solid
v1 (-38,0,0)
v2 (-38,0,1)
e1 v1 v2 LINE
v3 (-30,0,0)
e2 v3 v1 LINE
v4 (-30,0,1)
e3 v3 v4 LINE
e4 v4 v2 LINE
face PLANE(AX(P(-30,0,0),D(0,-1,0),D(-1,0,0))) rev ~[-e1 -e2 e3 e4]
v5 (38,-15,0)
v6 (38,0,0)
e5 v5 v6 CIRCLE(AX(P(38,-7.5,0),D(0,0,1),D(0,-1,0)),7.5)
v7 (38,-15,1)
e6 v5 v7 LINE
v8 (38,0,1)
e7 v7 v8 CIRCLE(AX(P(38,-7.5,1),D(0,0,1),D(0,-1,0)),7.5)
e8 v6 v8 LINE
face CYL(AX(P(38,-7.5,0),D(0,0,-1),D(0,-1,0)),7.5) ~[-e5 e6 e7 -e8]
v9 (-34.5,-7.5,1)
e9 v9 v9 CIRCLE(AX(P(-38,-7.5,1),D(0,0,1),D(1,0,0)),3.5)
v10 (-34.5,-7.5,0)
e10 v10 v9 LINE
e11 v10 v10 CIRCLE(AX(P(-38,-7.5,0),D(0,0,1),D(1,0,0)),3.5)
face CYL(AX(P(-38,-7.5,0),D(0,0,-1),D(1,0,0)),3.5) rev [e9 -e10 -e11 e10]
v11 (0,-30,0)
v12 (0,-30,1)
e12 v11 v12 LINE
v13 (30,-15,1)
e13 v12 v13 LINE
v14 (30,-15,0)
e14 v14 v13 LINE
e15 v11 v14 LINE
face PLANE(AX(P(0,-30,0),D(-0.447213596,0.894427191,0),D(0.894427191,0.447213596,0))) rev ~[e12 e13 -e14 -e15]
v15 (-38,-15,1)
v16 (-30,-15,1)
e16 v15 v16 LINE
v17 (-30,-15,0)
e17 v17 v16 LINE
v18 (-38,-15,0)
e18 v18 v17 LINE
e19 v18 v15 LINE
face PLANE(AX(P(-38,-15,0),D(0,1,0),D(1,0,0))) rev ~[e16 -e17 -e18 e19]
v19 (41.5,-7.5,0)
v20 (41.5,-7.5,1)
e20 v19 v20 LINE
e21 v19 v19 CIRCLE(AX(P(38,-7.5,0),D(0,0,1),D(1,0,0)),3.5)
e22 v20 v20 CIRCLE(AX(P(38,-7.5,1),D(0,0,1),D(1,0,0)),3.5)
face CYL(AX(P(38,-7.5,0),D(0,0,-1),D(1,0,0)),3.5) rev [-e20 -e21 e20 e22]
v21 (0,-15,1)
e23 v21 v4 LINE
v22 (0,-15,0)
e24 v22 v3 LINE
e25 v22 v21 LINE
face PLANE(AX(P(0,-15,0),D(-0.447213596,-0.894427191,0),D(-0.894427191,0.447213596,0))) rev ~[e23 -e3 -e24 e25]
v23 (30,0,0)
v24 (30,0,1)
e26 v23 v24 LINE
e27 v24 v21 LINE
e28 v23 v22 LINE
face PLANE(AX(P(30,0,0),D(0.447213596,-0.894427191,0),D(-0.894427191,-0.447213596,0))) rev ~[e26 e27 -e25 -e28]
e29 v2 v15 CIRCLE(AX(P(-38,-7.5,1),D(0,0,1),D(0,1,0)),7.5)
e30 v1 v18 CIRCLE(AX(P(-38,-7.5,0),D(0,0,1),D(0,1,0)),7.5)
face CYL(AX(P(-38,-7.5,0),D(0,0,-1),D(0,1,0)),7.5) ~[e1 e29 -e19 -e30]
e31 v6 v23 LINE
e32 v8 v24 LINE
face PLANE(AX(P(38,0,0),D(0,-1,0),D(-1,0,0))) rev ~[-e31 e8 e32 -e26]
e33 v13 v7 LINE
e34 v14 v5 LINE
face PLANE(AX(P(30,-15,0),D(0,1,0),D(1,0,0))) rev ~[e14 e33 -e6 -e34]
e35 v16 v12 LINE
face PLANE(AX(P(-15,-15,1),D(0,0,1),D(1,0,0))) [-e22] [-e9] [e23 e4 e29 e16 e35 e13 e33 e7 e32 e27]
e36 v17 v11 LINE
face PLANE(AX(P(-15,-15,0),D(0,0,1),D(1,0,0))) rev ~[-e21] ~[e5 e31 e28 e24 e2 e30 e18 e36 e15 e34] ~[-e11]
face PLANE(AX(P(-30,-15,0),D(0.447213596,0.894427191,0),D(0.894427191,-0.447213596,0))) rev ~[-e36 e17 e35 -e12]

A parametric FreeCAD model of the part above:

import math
import FreeCAD as App
import Part
import Sketcher
from FreeCAD import Vector

doc = App.newDocument("Part")
body = doc.addObject("PartDesign::Body", "Body")

# Sketch on XY plane
sketch1 = body.newObject("Sketcher::SketchObject", "Sketch")
sketch1.AttachmentSupport = (doc.getObject("XY_Plane"), [""])
sketch1.MapMode = "FlatFace"
sketch1.addGeometry(Part.LineSegment(Vector(0, -15, 0), Vector(-30, 0, 0)), False)
sketch1.addGeometry(Part.LineSegment(Vector(-30, 0, 0), Vector(-38, 0, 0)), False)
sketch1.addGeometry(Part.ArcOfCircle(Part.Circle(Vector(-38, -7.5, 0), Vector(0, 0, 1), 7.5), math.radians(90), math.radians(270)), False)
sketch1.addGeometry(Part.LineSegment(Vector(-38, -15, 0), Vector(-30, -15, 0)), False)
sketch1.addGeometry(Part.LineSegment(Vector(-30, -15, 0), Vector(0, -30, 0)), False)
sketch1.addGeometry(Part.LineSegment(Vector(0, -30, 0), Vector(30, -15, 0)), False)
sketch1.addGeometry(Part.LineSegment(Vector(30, -15, 0), Vector(38, -15, 0)), False)
sketch1.addGeometry(Part.ArcOfCircle(Part.Circle(Vector(38, -7.5, 0), Vector(0, 0, 1), 7.5), math.radians(-90), math.radians(90)), False)
sketch1.addGeometry(Part.LineSegment(Vector(38, 0, 0), Vector(30, 0, 0)), False)
sketch1.addGeometry(Part.LineSegment(Vector(30, 0, 0), Vector(0, -15, 0)), False)
sketch1.addGeometry(Part.Circle(Vector(-38, -7.5, 0), Vector(0, 0, 1), 3.5), False)
sketch1.addGeometry(Part.Circle(Vector(38, -7.5, 0), Vector(0, 0, 1), 3.5), False)
sketch1.addConstraint(Sketcher.Constraint("Coincident", 0, 2, 1, 1))
sketch1.addConstraint(Sketcher.Constraint("Tangent", 1, 2, 2, 1))
sketch1.addConstraint(Sketcher.Constraint("Tangent", 2, 2, 3, 1))
sketch1.addConstraint(Sketcher.Constraint("Coincident", 3, 2, 4, 1))
sketch1.addConstraint(Sketcher.Constraint("Coincident", 4, 2, 5, 1))
sketch1.addConstraint(Sketcher.Constraint("Coincident", 5, 2, 6, 1))
sketch1.addConstraint(Sketcher.Constraint("Tangent", 6, 2, 7, 1))
sketch1.addConstraint(Sketcher.Constraint("Tangent", 7, 2, 8, 1))
sketch1.addConstraint(Sketcher.Constraint("Coincident", 8, 2, 9, 1))
sketch1.addConstraint(Sketcher.Constraint("Coincident", 9, 2, 0, 1))
sketch1.addConstraint(Sketcher.Constraint("Horizontal", 1))
sketch1.addConstraint(Sketcher.Constraint("Horizontal", 3))
sketch1.addConstraint(Sketcher.Constraint("Horizontal", 6))
sketch1.addConstraint(Sketcher.Constraint("Horizontal", 8))
sketch1.addConstraint(Sketcher.Constraint("Coincident", 10, 3, 2, 3))
sketch1.addConstraint(Sketcher.Constraint("Coincident", 11, 3, 7, 3))
sketch1.addConstraint(Sketcher.Constraint("Equal", 2, 7))
sketch1.addConstraint(Sketcher.Constraint("Equal", 10, 11))
sketch1.addConstraint(Sketcher.Constraint("Symmetric", 1, 2, 7, 2, -1, 1))
sketch1.addConstraint(Sketcher.Constraint("Symmetric", 3, 2, 5, 2, -2))
sketch1.addConstraint(Sketcher.Constraint("PointOnObject", 4, 2, -2))
sketch1.addConstraint(Sketcher.Constraint("PointOnObject", 9, 2, -2))
sketch1.addConstraint(Sketcher.Constraint("Parallel", 0, 4))
sketch1.addConstraint(Sketcher.Constraint("Parallel", 5, 9))
sketch1.addConstraint(Sketcher.Constraint("Horizontal", 6, 2, 9, 2))
sketch1.addConstraint(Sketcher.Constraint("Vertical", 0, 2, 3, 2))
sketch1.addConstraint(Sketcher.Constraint("Diameter", 10, 7.0))
sketch1.addConstraint(Sketcher.Constraint("Radius", 2, 7.5))
sketch1.addConstraint(Sketcher.Constraint("DistanceX", 1, 2, 1, 1, 8.0))
sketch1.addConstraint(Sketcher.Constraint("DistanceX", 2, 3, -1, 1, 38.0))
pad1 = body.newObject("PartDesign::Pad", "Pad")
pad1.Profile = sketch1
pad1.Length = 1

doc.recompute()
